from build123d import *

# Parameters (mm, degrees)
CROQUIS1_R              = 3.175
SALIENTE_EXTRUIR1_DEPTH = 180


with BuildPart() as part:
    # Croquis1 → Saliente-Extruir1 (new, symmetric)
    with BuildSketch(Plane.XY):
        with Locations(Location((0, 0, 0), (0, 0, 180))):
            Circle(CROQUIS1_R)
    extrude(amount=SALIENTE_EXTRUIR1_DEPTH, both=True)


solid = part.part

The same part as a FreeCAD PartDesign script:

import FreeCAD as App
import Part
import Sketcher
from FreeCAD import Vector
Q = App.Units.Quantity

doc = App.newDocument("Part")
params = doc.addObject("Spreadsheet::Sheet", "Params")
for row, (alias, value) in enumerate([
    ("sketch1_diameter", "6.35 mm"),
    ("pad1_length", "360 mm"),
], start=1):
    params.set(f"A{row}", alias)
    params.set(f"B{row}", "=" + value)
    params.setAlias(f"B{row}", alias)

body = doc.addObject("PartDesign::Body", "Body")

# Sketch on XY plane
sketch1 = body.newObject("Sketcher::SketchObject", "Sketch")
sketch1.AttachmentSupport = (doc.getObject("XY_Plane"), [""])
sketch1.MapMode = "FlatFace"
sketch1.addGeometry(Part.Circle(Vector(0, 0, 0), Vector(0, 0, 1), 3.175), False)
sketch1.addConstraint([
    Sketcher.Constraint("Coincident", 0, 3, -1, 1),
    Sketcher.Constraint("Diameter", 0, Q("6.35 mm")),
])
sketch1.setExpression("Constraints[1]", "Params.sketch1_diameter")
pad1 = body.newObject("PartDesign::Pad", "Pad")
pad1.Profile = sketch1
pad1.setExpression("Length", "Params.pad1_length")
pad1.Midplane = True

doc.recompute()
